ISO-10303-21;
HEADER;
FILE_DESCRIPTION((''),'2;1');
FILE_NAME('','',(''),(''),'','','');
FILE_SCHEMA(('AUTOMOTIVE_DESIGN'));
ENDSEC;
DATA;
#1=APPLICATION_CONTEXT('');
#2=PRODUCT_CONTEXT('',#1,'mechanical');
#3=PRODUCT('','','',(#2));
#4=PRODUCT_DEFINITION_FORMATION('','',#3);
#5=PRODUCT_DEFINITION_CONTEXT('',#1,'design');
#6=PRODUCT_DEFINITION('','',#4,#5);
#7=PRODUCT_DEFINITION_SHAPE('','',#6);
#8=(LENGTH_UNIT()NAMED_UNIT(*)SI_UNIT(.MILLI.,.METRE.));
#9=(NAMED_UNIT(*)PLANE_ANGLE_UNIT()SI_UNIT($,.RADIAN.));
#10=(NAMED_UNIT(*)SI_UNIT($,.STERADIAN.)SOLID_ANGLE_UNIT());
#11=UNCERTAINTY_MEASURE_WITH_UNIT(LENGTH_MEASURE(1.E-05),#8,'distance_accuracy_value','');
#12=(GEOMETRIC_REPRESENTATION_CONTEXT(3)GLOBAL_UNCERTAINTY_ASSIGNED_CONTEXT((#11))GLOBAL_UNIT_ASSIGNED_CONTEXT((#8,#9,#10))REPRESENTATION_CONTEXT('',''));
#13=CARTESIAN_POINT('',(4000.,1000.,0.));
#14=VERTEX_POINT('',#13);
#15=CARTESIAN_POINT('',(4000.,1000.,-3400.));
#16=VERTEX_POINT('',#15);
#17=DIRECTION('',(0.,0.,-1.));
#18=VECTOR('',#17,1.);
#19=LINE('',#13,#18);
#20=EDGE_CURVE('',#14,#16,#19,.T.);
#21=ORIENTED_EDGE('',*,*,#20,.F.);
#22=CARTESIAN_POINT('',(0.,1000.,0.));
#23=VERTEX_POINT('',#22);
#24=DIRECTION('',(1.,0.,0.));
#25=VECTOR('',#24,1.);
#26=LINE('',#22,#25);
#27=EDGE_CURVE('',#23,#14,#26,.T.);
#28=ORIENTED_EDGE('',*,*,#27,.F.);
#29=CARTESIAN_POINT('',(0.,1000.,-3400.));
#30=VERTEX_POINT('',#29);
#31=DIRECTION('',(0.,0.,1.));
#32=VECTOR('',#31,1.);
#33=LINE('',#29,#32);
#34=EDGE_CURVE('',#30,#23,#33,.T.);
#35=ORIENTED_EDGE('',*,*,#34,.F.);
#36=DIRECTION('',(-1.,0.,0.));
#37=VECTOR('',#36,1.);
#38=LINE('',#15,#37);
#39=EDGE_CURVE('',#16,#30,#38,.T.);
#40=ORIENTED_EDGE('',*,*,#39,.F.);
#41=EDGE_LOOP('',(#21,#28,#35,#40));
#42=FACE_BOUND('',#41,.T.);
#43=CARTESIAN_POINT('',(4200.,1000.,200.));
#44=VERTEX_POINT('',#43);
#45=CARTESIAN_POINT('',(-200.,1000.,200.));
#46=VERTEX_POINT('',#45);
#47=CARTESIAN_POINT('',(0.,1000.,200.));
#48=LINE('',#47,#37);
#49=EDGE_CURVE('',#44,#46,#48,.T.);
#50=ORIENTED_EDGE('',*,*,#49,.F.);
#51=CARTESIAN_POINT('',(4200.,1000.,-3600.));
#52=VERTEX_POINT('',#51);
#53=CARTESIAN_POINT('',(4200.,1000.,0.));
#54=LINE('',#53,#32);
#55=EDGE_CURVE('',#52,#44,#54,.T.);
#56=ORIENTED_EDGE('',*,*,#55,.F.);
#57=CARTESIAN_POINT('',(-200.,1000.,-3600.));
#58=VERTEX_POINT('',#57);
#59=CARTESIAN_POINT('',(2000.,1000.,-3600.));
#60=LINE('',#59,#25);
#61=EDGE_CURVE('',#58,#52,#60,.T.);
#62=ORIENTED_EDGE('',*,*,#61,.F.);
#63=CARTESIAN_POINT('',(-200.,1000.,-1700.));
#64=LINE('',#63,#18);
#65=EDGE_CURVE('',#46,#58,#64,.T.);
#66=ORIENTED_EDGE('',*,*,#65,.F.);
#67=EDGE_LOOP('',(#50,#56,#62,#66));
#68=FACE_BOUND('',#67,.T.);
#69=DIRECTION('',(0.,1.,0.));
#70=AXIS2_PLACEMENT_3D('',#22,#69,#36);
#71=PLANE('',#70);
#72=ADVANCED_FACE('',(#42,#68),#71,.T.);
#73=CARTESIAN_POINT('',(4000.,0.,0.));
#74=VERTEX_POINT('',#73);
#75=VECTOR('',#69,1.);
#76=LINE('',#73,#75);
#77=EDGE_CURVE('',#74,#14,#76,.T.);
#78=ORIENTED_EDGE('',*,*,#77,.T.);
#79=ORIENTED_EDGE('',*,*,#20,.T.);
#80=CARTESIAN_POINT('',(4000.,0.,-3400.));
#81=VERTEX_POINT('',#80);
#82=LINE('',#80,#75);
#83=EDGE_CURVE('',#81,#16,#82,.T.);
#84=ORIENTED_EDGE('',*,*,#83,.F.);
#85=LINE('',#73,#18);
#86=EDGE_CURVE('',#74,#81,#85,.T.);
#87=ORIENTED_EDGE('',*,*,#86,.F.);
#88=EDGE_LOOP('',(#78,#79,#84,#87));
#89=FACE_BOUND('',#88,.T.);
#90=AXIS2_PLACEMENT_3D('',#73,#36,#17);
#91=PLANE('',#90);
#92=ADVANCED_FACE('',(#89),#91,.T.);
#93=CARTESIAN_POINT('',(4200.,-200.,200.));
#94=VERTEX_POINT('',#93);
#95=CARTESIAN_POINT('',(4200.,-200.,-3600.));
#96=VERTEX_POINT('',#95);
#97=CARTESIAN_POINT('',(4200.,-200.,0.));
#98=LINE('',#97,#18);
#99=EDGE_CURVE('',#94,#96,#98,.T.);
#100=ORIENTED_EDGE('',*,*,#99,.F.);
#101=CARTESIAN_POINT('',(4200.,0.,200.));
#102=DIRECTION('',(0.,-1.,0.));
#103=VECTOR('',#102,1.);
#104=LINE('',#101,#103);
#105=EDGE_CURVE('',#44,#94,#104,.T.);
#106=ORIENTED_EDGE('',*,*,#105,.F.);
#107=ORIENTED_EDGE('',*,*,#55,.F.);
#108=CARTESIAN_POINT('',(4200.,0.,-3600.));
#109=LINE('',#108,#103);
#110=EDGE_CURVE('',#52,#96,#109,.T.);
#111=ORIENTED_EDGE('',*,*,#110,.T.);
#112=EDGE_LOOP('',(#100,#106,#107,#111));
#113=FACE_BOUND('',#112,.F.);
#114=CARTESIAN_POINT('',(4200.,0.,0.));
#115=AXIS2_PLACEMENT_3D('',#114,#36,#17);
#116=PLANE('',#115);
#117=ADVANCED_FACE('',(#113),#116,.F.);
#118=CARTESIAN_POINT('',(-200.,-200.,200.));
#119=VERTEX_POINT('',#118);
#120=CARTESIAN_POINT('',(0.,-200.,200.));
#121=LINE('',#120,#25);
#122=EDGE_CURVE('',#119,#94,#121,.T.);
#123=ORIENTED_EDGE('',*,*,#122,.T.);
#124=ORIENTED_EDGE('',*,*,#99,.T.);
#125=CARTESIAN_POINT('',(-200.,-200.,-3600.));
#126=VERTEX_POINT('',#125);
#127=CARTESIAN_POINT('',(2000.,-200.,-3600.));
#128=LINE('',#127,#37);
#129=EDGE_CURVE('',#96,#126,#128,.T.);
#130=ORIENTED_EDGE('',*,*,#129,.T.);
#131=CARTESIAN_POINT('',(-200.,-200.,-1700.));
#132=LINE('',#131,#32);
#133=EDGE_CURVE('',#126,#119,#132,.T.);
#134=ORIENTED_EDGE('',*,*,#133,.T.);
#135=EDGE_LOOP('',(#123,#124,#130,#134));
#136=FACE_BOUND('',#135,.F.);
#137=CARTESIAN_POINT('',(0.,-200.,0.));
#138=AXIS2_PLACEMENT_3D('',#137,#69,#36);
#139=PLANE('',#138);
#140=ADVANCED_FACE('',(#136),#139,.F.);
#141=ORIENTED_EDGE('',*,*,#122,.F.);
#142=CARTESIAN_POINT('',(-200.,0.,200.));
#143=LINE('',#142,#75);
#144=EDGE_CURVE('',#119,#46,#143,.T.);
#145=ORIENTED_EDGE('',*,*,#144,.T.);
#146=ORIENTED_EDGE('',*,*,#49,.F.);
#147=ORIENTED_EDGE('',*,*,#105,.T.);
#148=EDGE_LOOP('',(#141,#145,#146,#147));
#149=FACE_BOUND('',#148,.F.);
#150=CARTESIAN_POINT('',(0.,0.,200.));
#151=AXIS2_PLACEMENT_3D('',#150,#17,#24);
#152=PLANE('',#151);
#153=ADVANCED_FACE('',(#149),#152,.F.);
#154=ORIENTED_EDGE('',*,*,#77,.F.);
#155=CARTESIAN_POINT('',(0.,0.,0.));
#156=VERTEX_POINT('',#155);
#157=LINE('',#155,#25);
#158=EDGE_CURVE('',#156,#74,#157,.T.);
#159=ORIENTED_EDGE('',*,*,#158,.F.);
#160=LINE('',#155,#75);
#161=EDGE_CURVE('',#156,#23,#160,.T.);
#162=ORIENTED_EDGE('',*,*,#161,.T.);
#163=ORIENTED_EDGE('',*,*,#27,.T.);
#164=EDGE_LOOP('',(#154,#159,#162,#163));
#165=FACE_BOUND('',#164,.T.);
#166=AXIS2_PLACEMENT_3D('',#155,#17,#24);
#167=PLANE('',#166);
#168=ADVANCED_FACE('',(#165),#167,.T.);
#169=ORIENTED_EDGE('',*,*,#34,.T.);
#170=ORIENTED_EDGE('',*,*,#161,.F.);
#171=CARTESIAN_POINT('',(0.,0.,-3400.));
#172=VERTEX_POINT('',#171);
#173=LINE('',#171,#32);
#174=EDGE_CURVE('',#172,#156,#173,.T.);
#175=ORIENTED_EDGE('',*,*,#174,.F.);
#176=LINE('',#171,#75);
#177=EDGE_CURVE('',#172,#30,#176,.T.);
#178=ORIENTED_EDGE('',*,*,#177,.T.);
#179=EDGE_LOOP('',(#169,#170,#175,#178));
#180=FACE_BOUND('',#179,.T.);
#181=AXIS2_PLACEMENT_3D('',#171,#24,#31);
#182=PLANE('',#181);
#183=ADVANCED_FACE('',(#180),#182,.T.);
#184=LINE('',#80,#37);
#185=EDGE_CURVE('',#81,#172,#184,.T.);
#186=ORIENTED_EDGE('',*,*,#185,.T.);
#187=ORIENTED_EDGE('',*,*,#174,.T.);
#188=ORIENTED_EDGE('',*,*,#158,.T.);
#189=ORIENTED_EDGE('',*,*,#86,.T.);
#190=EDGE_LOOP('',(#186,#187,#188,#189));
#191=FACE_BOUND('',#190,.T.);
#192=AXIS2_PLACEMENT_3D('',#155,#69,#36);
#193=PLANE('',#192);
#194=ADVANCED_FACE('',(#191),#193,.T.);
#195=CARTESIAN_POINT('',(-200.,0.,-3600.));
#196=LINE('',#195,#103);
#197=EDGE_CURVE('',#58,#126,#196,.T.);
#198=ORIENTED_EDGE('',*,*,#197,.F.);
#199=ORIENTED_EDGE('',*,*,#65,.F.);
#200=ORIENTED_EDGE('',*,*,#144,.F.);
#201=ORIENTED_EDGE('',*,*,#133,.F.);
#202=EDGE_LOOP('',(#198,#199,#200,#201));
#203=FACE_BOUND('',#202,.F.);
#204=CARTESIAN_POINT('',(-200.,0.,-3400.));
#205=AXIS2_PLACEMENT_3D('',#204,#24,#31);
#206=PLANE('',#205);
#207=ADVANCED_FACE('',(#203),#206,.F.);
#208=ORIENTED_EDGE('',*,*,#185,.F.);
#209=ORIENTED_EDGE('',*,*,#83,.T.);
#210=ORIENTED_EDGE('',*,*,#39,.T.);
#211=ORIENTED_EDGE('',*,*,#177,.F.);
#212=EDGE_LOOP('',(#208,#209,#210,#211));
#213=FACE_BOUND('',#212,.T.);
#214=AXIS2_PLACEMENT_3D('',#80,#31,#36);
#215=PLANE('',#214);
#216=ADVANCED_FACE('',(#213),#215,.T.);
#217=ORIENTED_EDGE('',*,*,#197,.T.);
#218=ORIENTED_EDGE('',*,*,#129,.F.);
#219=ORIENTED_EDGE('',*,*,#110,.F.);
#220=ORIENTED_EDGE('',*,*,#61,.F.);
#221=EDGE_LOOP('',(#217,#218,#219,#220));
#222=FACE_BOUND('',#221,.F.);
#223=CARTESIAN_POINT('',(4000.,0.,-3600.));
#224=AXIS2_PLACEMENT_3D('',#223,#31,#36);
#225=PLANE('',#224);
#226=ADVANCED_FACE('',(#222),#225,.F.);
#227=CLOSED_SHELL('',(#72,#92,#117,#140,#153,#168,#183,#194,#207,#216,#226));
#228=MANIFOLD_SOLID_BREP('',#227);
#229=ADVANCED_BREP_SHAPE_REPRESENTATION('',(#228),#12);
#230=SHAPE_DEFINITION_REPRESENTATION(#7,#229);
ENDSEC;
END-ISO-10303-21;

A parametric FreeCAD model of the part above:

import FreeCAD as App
import Part
import Sketcher


def faces_at(feature, points):
    """Names of the faces that lie closest to the given points."""
    faces = feature.Shape.Faces
    near = lambda p: min(range(len(faces)), key=lambda i: faces[i].distToShape(Part.Vertex(*p))[0])
    return sorted({f"Face{near(p) + 1}" for p in points})


def add_polygon(sketch, points):
    """Adds a closed chain of lines whose ends are joined by coincident constraints."""
    first, n = sketch.GeometryCount, len(points)
    for a, b in zip(points, points[1:] + points[:1]):
        sketch.addGeometry(Part.LineSegment(App.Vector(*a, 0), App.Vector(*b, 0)), False)
    for i in range(n):
        sketch.addConstraint(Sketcher.Constraint("Coincident", first + i, 2, first + (i + 1) % n, 1))

doc = App.newDocument("Part")
params = doc.addObject("Spreadsheet::Sheet", "Params")
for row, (alias, value) in enumerate([
    ("sketch1_width", "4000 mm"),
    ("sketch1_height", "3400 mm"),
    ("pad1_length", "1000 mm"),
    ("thickness_wall", "200 mm"),
], start=1):
    params.set(f"A{row}", alias)
    params.set(f"B{row}", "=" + value)
    params.setAlias(f"B{row}", alias)

body = doc.addObject("PartDesign::Body", "Body")

# Sketch on XZ plane
sketch1 = body.newObject("Sketcher::SketchObject", "Sketch")
sketch1.AttachmentSupport = (doc.getObject("XZ_Plane"), [""])
sketch1.MapMode = "FlatFace"
add_polygon(sketch1, [(0, -3400), (0, 0), (4000, 0), (4000, -3400)])  # lines 0-3
sketch1.addConstraint([
    Sketcher.Constraint("Vertical", 0),
    Sketcher.Constraint("Horizontal", 1),
    Sketcher.Constraint("Vertical", 2),
    Sketcher.Constraint("Horizontal", 3),
    Sketcher.Constraint("Coincident", 0, 2, -1, 1),
    Sketcher.Constraint("DistanceX", 1, 1, 1, 2, 4000.0),
    Sketcher.Constraint("DistanceY", 0, 1, 0, 2, 3400.0),
])
sketch1.setExpression("Constraints[9]", "Params.sketch1_width")
sketch1.setExpression("Constraints[10]", "Params.sketch1_height")
pad1 = body.newObject("PartDesign::Pad", "Pad")
pad1.Profile = sketch1
pad1.setExpression("Length", "Params.pad1_length")
pad1.Reversed = True
doc.recompute()

thickness = body.newObject("PartDesign::Thickness", "Thickness")
thickness.Base = (pad1, faces_at(pad1, [(2666.667, 1000, -1133.333)]))
thickness.setExpression("Value", "Params.thickness_wall")
thickness.Reversed = False
thickness.Join = "Intersection"

doc.recompute()
